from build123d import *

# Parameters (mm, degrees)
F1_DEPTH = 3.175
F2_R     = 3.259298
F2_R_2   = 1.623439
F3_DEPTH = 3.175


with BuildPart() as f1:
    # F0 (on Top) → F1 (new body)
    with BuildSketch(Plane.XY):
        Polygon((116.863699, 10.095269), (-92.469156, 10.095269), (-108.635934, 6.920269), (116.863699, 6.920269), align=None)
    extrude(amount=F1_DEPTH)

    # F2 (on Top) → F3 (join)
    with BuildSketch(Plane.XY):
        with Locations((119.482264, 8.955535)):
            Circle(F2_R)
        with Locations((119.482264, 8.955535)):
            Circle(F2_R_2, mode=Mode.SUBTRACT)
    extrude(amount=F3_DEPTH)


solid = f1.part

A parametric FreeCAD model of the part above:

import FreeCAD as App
import Part
import Sketcher
Q = App.Units.Quantity


def add_polygon(sketch, points):
    """Adds a closed chain of lines whose ends are joined by coincident constraints."""
    first, n = sketch.GeometryCount, len(points)
    for a, b in zip(points, points[1:] + points[:1]):
        sketch.addGeometry(Part.LineSegment(App.Vector(*a, 0), App.Vector(*b, 0)), False)
    for i in range(n):
        sketch.addConstraint(Sketcher.Constraint("Coincident", first + i, 2, first + (i + 1) % n, 1))

doc = App.newDocument("Part")
body = doc.addObject("PartDesign::Body", "Body")

# Sketch on XY plane
sketch1 = body.newObject("Sketcher::SketchObject", "Sketch")
sketch1.AttachmentSupport = (doc.getObject("XY_Plane"), [""])
sketch1.MapMode = "FlatFace"
add_polygon(sketch1, [(116.9, 10.1), (-92.5, 10.1), (-108.6, 6.9), (116.9, 6.9)])  # lines 0-3
sketch1.addConstraint(Sketcher.Constraint("Horizontal", 0))
sketch1.addConstraint(Sketcher.Constraint("Horizontal", 2))
sketch1.addConstraint(Sketcher.Constraint("Vertical", 3))
sketch1.addConstraint(Sketcher.Constraint("DistanceY", 3, 1, 3, 2, Q("0.125 in")))
sketch1.addConstraint(Sketcher.Constraint("Distance", 1, Q("16.475598 mm")))
sketch1.addConstraint(Sketcher.Constraint("DistanceX", -1, 1, 2, 2, Q("116.863699 mm")))
sketch1.addConstraint(Sketcher.Constraint("DistanceX", 0, 2, 0, 1, Q("209.332855 mm")))
sketch1.addConstraint(Sketcher.Constraint("DistanceY", -1, 1, 0, 2, Q("10.095269 mm")))
pad1 = body.newObject("PartDesign::Pad", "Pad")
pad1.Profile = sketch1
pad1.Length = Q("0.125 in")

# Sketch on XY plane
sketch2 = body.newObject("Sketcher::SketchObject", "Sketch001")
sketch2.AttachmentSupport = (doc.getObject("XY_Plane"), [""])
sketch2.MapMode = "FlatFace"
sketch2.addGeometry(Part.Circle(App.Vector(119.5, 9, 0), App.Vector(0, 0, 1), 3.3), False)
sketch2.addGeometry(Part.Circle(App.Vector(119.5, 9, 0), App.Vector(0, 0, 1), 1.6), False)
sketch2.addConstraint(Sketcher.Constraint("Coincident", 1, 3, 0, 3))
sketch2.addConstraint(Sketcher.Constraint("Diameter", 1, Q("3.246878 mm")))
sketch2.addConstraint(Sketcher.Constraint("Diameter", 0, Q("6.518596 mm")))
sketch2.addConstraint(Sketcher.Constraint("DistanceX", -1, 1, 0, 3, Q("119.482264 mm")))
sketch2.addConstraint(Sketcher.Constraint("DistanceY", -1, 1, 0, 3, Q("8.955535 mm")))
pad2 = body.newObject("PartDesign::Pad", "Pad001")
pad2.Profile = sketch2
pad2.Length = Q("0.125 in")

doc.recompute()
